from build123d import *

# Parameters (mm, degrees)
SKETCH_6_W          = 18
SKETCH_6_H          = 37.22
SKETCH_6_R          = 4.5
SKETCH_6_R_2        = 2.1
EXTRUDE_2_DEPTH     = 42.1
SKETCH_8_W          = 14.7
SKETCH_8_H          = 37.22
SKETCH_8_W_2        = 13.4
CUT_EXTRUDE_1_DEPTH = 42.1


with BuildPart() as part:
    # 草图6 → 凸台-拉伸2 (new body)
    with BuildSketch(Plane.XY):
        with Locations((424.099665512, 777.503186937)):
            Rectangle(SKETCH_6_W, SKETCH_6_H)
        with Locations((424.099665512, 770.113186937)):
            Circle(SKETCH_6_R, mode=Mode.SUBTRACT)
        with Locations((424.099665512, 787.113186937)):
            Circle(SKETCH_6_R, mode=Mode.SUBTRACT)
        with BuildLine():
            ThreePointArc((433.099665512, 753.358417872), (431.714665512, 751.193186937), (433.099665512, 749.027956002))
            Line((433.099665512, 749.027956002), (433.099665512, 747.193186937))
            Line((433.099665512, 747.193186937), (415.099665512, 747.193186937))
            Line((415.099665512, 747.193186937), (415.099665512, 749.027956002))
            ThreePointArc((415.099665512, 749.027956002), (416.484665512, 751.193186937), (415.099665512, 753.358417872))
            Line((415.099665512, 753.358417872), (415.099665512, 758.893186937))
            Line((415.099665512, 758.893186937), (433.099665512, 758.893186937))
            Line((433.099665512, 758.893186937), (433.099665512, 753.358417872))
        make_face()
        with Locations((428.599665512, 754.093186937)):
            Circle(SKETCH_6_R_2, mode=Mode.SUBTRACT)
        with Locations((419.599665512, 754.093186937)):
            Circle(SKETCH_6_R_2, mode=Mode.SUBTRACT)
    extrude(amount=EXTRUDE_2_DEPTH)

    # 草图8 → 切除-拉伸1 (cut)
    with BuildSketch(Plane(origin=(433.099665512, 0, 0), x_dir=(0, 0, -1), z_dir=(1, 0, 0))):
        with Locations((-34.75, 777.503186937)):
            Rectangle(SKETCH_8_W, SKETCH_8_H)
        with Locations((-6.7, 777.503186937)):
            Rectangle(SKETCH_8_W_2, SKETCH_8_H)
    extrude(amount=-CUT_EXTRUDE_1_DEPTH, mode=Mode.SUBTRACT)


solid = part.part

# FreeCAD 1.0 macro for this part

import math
import FreeCAD as App
import Part
import Sketcher
from FreeCAD import Vector
Q = App.Units.Quantity

doc = App.newDocument("Part")
body = doc.addObject("PartDesign::Body", "Body")

# Sketch on XY plane
sketch1 = body.newObject("Sketcher::SketchObject", "Sketch")
sketch1.AttachmentSupport = (doc.getObject("XY_Plane"), [""])
sketch1.MapMode = "FlatFace"
sketch1.addGeometry(Part.LineSegment(Vector(415.1, 796.1, 0), Vector(415.1, 753.4, 0)), False)
sketch1.addGeometry(Part.ArcOfCircle(Part.Circle(Vector(414.1, 751.2, 0), Vector(0, 0, 1), 2.4), math.radians(-65), math.radians(65)), False)
sketch1.addGeometry(Part.LineSegment(Vector(415.1, 749, 0), Vector(415.1, 747.2, 0)), False)
sketch1.addGeometry(Part.LineSegment(Vector(415.1, 747.2, 0), Vector(433.1, 747.2, 0)), False)
sketch1.addGeometry(Part.LineSegment(Vector(433.1, 747.2, 0), Vector(433.1, 749, 0)), False)
sketch1.addGeometry(Part.ArcOfCircle(Part.Circle(Vector(434.1, 751.2, 0), Vector(0, 0, 1), 2.4), math.radians(115), math.radians(245)), False)
sketch1.addGeometry(Part.LineSegment(Vector(433.1, 753.4, 0), Vector(433.1, 796.1, 0)), False)
sketch1.addGeometry(Part.LineSegment(Vector(433.1, 796.1, 0), Vector(415.1, 796.1, 0)), False)
sketch1.addGeometry(Part.Circle(Vector(419.6, 754.1, 0), Vector(0, 0, 1), 2.1), False)
sketch1.addGeometry(Part.Circle(Vector(428.6, 754.1, 0), Vector(0, 0, 1), 2.1), False)
sketch1.addGeometry(Part.Circle(Vector(424.1, 770.1, 0), Vector(0, 0, 1), 4.5), False)
sketch1.addGeometry(Part.Circle(Vector(424.1, 787.1, 0), Vector(0, 0, 1), 4.5), False)
sketch1.addConstraint(Sketcher.Constraint("Coincident", 0, 2, 1, 2))
sketch1.addConstraint(Sketcher.Constraint("Coincident", 1, 1, 2, 1))
sketch1.addConstraint(Sketcher.Constraint("Coincident", 2, 2, 3, 1))
sketch1.addConstraint(Sketcher.Constraint("Coincident", 3, 2, 4, 1))
sketch1.addConstraint(Sketcher.Constraint("Coincident", 4, 2, 5, 2))
sketch1.addConstraint(Sketcher.Constraint("Coincident", 5, 1, 6, 1))
sketch1.addConstraint(Sketcher.Constraint("Coincident", 6, 2, 7, 1))
sketch1.addConstraint(Sketcher.Constraint("Coincident", 7, 2, 0, 1))
sketch1.addConstraint(Sketcher.Constraint("Vertical", 0))
sketch1.addConstraint(Sketcher.Constraint("Vertical", 2))
sketch1.addConstraint(Sketcher.Constraint("Horizontal", 3))
sketch1.addConstraint(Sketcher.Constraint("Vertical", 4))
sketch1.addConstraint(Sketcher.Constraint("Vertical", 6))
sketch1.addConstraint(Sketcher.Constraint("Horizontal", 7))
sketch1.addConstraint(Sketcher.Constraint("Equal", 1, 5))
sketch1.addConstraint(Sketcher.Constraint("Equal", 8, 9))
sketch1.addConstraint(Sketcher.Constraint("Equal", 10, 11))
sketch1.addConstraint(Sketcher.Constraint("Horizontal", 1, 3, 5, 3))
sketch1.addConstraint(Sketcher.Constraint("Horizontal", 8, 3, 9, 3))
sketch1.addConstraint(Sketcher.Constraint("Horizontal", 1, 1, 4, 2))
sketch1.addConstraint(Sketcher.Constraint("Horizontal", 0, 2, 5, 1))
sketch1.addConstraint(Sketcher.Constraint("Vertical", 10, 3, 11, 3))
sketch1.addConstraint(Sketcher.Constraint("Vertical", 0, 2, 1, 1))
sketch1.addConstraint(Sketcher.Constraint("Diameter", 10, Q("9 mm")))
sketch1.addConstraint(Sketcher.Constraint("Diameter", 8, Q("4.2 mm")))
sketch1.addConstraint(Sketcher.Constraint("DistanceX", 3, 1, 3, 2, Q("18 mm")))
sketch1.addConstraint(Sketcher.Constraint("Radius", 1, Q("2.385 mm")))
sketch1.addConstraint(Sketcher.Constraint("DistanceX", 1, 3, 5, 3, Q("20 mm")))
sketch1.addConstraint(Sketcher.Constraint("DistanceX", 8, 3, 9, 3, Q("9 mm")))
sketch1.addConstraint(Sketcher.Constraint("DistanceX", 1, 3, 10, 3, Q("10 mm")))
sketch1.addConstraint(Sketcher.Constraint("DistanceY", 10, 3, 11, 3, Q("17 mm")))
sketch1.addConstraint(Sketcher.Constraint("DistanceY", 2, 2, 1, 3, Q("4 mm")))
sketch1.addConstraint(Sketcher.Constraint("DistanceY", 11, 3, 6, 2, Q("9 mm")))
sketch1.addConstraint(Sketcher.Constraint("DistanceX", 1, 3, 8, 3, Q("5.5 mm")))
sketch1.addConstraint(Sketcher.Constraint("DistanceY", 1, 3, 8, 3, Q("2.9 mm")))
sketch1.addConstraint(Sketcher.Constraint("DistanceY", 8, 3, 10, 3, Q("16.02 mm")))
sketch1.addConstraint(Sketcher.Constraint("DistanceX", -1, 1, 1, 3, Q("414.099666 mm")))
sketch1.addConstraint(Sketcher.Constraint("DistanceY", -1, 1, 1, 3, Q("751.193187 mm")))
pad1 = body.newObject("PartDesign::Pad", "Pad")
pad1.Profile = sketch1
pad1.Length = 42.1

# Sketch on YZ plane
sketch2 = body.newObject("Sketcher::SketchObject", "Sketch001")
sketch2.AttachmentSupport = (doc.getObject("YZ_Plane"), [""])
sketch2.MapMode = "FlatFace"
sketch2.AttachmentOffset = App.Placement(Vector(0, 0, 433.099666), App.Rotation())
sketch2.addGeometry(Part.LineSegment(Vector(796, 42, 0), Vector(759, 42, 0)), False)
sketch2.addGeometry(Part.LineSegment(Vector(759, 42, 0), Vector(759, 27, 0)), False)
sketch2.addGeometry(Part.LineSegment(Vector(759, 27, 0), Vector(796, 27, 0)), False)
sketch2.addGeometry(Part.LineSegment(Vector(796, 27, 0), Vector(796, 42, 0)), False)
sketch2.addGeometry(Part.LineSegment(Vector(796, 13, 0), Vector(759, 13, 0)), False)
sketch2.addGeometry(Part.LineSegment(Vector(759, 13, 0), Vector(759, 0, 0)), False)
sketch2.addGeometry(Part.LineSegment(Vector(759, 0, 0), Vector(796, 0, 0)), False)
sketch2.addGeometry(Part.LineSegment(Vector(796, 0, 0), Vector(796, 13, 0)), False)
sketch2.addConstraint(Sketcher.Constraint("Coincident", 0, 2, 1, 1))
sketch2.addConstraint(Sketcher.Constraint("Coincident", 1, 2, 2, 1))
sketch2.addConstraint(Sketcher.Constraint("Coincident", 2, 2, 3, 1))
sketch2.addConstraint(Sketcher.Constraint("Coincident", 3, 2, 0, 1))
sketch2.addConstraint(Sketcher.Constraint("Coincident", 4, 2, 5, 1))
sketch2.addConstraint(Sketcher.Constraint("Coincident", 5, 2, 6, 1))
sketch2.addConstraint(Sketcher.Constraint("Coincident", 6, 2, 7, 1))
sketch2.addConstraint(Sketcher.Constraint("Coincident", 7, 2, 4, 1))
sketch2.addConstraint(Sketcher.Constraint("Horizontal", 0))
sketch2.addConstraint(Sketcher.Constraint("Vertical", 1))
sketch2.addConstraint(Sketcher.Constraint("Horizontal", 2))
sketch2.addConstraint(Sketcher.Constraint("Vertical", 3))
sketch2.addConstraint(Sketcher.Constraint("Horizontal", 4))
sketch2.addConstraint(Sketcher.Constraint("Vertical", 5))
sketch2.addConstraint(Sketcher.Constraint("Horizontal", 6))
sketch2.addConstraint(Sketcher.Constraint("Vertical", 7))
sketch2.addConstraint(Sketcher.Constraint("PointOnObject", 5, 2, -1))
sketch2.addConstraint(Sketcher.Constraint("Vertical", 1, 2, 4, 2))
sketch2.addConstraint(Sketcher.Constraint("Vertical", 3, 2, 6, 2))
sketch2.addConstraint(Sketcher.Constraint("DistanceY", 1, 2, 1, 1, Q("14.7 mm")))
sketch2.addConstraint(Sketcher.Constraint("DistanceY", 5, 2, 5, 1, Q("13.4 mm")))
sketch2.addConstraint(Sketcher.Constraint("DistanceY", 4, 2, 1, 2, Q("14 mm")))
sketch2.addConstraint(Sketcher.Constraint("DistanceX", 0, 2, 0, 1, Q("37.22 mm")))
sketch2.addConstraint(Sketcher.Constraint("DistanceX", -1, 1, 0, 2, Q("758.893187 mm")))
pocket1 = body.newObject("PartDesign::Pocket", "Pocket")
pocket1.Profile = sketch2
pocket1.Length = 42.1

doc.recompute()
